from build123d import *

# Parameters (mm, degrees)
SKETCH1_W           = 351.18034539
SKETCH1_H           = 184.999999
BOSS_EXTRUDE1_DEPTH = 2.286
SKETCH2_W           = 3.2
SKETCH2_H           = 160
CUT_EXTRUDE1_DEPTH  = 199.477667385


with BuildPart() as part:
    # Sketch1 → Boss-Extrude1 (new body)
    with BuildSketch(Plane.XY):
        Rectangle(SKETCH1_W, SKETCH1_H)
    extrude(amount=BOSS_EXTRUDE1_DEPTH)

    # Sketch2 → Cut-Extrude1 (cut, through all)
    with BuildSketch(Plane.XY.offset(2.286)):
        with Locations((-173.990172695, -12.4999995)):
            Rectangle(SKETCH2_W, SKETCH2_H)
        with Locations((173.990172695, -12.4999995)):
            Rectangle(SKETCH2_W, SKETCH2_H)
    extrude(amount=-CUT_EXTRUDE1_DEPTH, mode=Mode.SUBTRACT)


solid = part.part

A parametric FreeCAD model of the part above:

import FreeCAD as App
import Part
import Sketcher
Q = App.Units.Quantity

doc = App.newDocument("Part")
body = doc.addObject("PartDesign::Body", "Body")

# Sketch on XY plane
sketch1 = doc.addObject("Sketcher::SketchObject", "Sketch")
body.addObject(sketch1)
sketch1.AttachmentSupport = (doc.XY_Plane, [""])
sketch1.MapMode = "FlatFace"
sketch1.addGeometry(Part.LineSegment(App.Vector(-175.590173, 92.5, 0), App.Vector(-175.590173, -92.5, 0)), False)
sketch1.addGeometry(Part.LineSegment(App.Vector(-175.590173, -92.5, 0), App.Vector(175.590173, -92.5, 0)), False)
sketch1.addGeometry(Part.LineSegment(App.Vector(175.590173, -92.5, 0), App.Vector(175.590173, 92.5, 0)), False)
sketch1.addGeometry(Part.LineSegment(App.Vector(175.590173, 92.5, 0), App.Vector(-175.590173, 92.5, 0)), False)
sketch1.addConstraint(Sketcher.Constraint("Coincident", 0, 2, 1, 1))
sketch1.addConstraint(Sketcher.Constraint("Coincident", 1, 2, 2, 1))
sketch1.addConstraint(Sketcher.Constraint("Coincident", 2, 2, 3, 1))
sketch1.addConstraint(Sketcher.Constraint("Coincident", 3, 2, 0, 1))
sketch1.addConstraint(Sketcher.Constraint("Vertical", 0))
sketch1.addConstraint(Sketcher.Constraint("Horizontal", 1))
sketch1.addConstraint(Sketcher.Constraint("Vertical", 2))
sketch1.addConstraint(Sketcher.Constraint("Horizontal", 3))
sketch1.addConstraint(Sketcher.Constraint("Symmetric", 0, 2, 2, 2, -1, 1))
sketch1.addConstraint(Sketcher.Constraint("DistanceY", 0, 2, 0, 1, Q("184.999999 mm")))
sketch1.addConstraint(Sketcher.Constraint("DistanceX", 1, 1, 1, 2, Q("351.180345 mm")))
pad1 = doc.addObject("PartDesign::Pad", "Pad")
body.addObject(pad1)
pad1.Profile = sketch1
pad1.Length = 2.286

# Sketch on XY plane
sketch2 = doc.addObject("Sketcher::SketchObject", "Sketch001")
body.addObject(sketch2)
sketch2.AttachmentSupport = (doc.XY_Plane, [""])
sketch2.MapMode = "FlatFace"
sketch2.AttachmentOffset = App.Placement(App.Vector(0, 0, 2.286), App.Rotation())
sketch2.addGeometry(Part.LineSegment(App.Vector(-175.590173, 67.5, 0), App.Vector(-175.590173, -92.5, 0)), False)
sketch2.addGeometry(Part.LineSegment(App.Vector(-175.590173, -92.5, 0), App.Vector(-172.390173, -92.5, 0)), False)
sketch2.addGeometry(Part.LineSegment(App.Vector(-172.390173, -92.5, 0), App.Vector(-172.390173, 67.5, 0)), False)
sketch2.addGeometry(Part.LineSegment(App.Vector(-172.390173, 67.5, 0), App.Vector(-175.590173, 67.5, 0)), False)
sketch2.addGeometry(Part.LineSegment(App.Vector(172.390173, 67.5, 0), App.Vector(172.390173, -92.5, 0)), False)
sketch2.addGeometry(Part.LineSegment(App.Vector(172.390173, -92.5, 0), App.Vector(175.590173, -92.5, 0)), False)
sketch2.addGeometry(Part.LineSegment(App.Vector(175.590173, -92.5, 0), App.Vector(175.590173, 67.5, 0)), False)
sketch2.addGeometry(Part.LineSegment(App.Vector(175.590173, 67.5, 0), App.Vector(172.390173, 67.5, 0)), False)
sketch2.addConstraint(Sketcher.Constraint("Coincident", 0, 2, 1, 1))
sketch2.addConstraint(Sketcher.Constraint("Coincident", 1, 2, 2, 1))
sketch2.addConstraint(Sketcher.Constraint("Coincident", 2, 2, 3, 1))
sketch2.addConstraint(Sketcher.Constraint("Coincident", 3, 2, 0, 1))
sketch2.addConstraint(Sketcher.Constraint("Coincident", 4, 2, 5, 1))
sketch2.addConstraint(Sketcher.Constraint("Coincident", 5, 2, 6, 1))
sketch2.addConstraint(Sketcher.Constraint("Coincident", 6, 2, 7, 1))
sketch2.addConstraint(Sketcher.Constraint("Coincident", 7, 2, 4, 1))
sketch2.addConstraint(Sketcher.Constraint("Vertical", 0))
sketch2.addConstraint(Sketcher.Constraint("Horizontal", 1))
sketch2.addConstraint(Sketcher.Constraint("Vertical", 2))
sketch2.addConstraint(Sketcher.Constraint("Horizontal", 3))
sketch2.addConstraint(Sketcher.Constraint("Vertical", 4))
sketch2.addConstraint(Sketcher.Constraint("Horizontal", 5))
sketch2.addConstraint(Sketcher.Constraint("Vertical", 6))
sketch2.addConstraint(Sketcher.Constraint("Horizontal", 7))
sketch2.addConstraint(Sketcher.Constraint("Symmetric", 1, 2, 4, 2, -2))
sketch2.addConstraint(Sketcher.Constraint("Symmetric", 3, 2, 6, 2, -2))
sketch2.addConstraint(Sketcher.Constraint("DistanceY", 0, 2, 0, 1, Q("160 mm")))
sketch2.addConstraint(Sketcher.Constraint("DistanceX", 1, 1, 1, 2, Q("3.2 mm")))
sketch2.addConstraint(Sketcher.Constraint("DistanceY", 0, 2, -1, 1, Q("92.5 mm")))
sketch2.addConstraint(Sketcher.Constraint("DistanceX", 0, 2, -1, 1, Q("175.590173 mm")))
pocket1 = doc.addObject("PartDesign::Pocket", "Pocket")
body.addObject(pocket1)
pocket1.Profile = sketch2
pocket1.Type = "ThroughAll"

doc.recompute()
